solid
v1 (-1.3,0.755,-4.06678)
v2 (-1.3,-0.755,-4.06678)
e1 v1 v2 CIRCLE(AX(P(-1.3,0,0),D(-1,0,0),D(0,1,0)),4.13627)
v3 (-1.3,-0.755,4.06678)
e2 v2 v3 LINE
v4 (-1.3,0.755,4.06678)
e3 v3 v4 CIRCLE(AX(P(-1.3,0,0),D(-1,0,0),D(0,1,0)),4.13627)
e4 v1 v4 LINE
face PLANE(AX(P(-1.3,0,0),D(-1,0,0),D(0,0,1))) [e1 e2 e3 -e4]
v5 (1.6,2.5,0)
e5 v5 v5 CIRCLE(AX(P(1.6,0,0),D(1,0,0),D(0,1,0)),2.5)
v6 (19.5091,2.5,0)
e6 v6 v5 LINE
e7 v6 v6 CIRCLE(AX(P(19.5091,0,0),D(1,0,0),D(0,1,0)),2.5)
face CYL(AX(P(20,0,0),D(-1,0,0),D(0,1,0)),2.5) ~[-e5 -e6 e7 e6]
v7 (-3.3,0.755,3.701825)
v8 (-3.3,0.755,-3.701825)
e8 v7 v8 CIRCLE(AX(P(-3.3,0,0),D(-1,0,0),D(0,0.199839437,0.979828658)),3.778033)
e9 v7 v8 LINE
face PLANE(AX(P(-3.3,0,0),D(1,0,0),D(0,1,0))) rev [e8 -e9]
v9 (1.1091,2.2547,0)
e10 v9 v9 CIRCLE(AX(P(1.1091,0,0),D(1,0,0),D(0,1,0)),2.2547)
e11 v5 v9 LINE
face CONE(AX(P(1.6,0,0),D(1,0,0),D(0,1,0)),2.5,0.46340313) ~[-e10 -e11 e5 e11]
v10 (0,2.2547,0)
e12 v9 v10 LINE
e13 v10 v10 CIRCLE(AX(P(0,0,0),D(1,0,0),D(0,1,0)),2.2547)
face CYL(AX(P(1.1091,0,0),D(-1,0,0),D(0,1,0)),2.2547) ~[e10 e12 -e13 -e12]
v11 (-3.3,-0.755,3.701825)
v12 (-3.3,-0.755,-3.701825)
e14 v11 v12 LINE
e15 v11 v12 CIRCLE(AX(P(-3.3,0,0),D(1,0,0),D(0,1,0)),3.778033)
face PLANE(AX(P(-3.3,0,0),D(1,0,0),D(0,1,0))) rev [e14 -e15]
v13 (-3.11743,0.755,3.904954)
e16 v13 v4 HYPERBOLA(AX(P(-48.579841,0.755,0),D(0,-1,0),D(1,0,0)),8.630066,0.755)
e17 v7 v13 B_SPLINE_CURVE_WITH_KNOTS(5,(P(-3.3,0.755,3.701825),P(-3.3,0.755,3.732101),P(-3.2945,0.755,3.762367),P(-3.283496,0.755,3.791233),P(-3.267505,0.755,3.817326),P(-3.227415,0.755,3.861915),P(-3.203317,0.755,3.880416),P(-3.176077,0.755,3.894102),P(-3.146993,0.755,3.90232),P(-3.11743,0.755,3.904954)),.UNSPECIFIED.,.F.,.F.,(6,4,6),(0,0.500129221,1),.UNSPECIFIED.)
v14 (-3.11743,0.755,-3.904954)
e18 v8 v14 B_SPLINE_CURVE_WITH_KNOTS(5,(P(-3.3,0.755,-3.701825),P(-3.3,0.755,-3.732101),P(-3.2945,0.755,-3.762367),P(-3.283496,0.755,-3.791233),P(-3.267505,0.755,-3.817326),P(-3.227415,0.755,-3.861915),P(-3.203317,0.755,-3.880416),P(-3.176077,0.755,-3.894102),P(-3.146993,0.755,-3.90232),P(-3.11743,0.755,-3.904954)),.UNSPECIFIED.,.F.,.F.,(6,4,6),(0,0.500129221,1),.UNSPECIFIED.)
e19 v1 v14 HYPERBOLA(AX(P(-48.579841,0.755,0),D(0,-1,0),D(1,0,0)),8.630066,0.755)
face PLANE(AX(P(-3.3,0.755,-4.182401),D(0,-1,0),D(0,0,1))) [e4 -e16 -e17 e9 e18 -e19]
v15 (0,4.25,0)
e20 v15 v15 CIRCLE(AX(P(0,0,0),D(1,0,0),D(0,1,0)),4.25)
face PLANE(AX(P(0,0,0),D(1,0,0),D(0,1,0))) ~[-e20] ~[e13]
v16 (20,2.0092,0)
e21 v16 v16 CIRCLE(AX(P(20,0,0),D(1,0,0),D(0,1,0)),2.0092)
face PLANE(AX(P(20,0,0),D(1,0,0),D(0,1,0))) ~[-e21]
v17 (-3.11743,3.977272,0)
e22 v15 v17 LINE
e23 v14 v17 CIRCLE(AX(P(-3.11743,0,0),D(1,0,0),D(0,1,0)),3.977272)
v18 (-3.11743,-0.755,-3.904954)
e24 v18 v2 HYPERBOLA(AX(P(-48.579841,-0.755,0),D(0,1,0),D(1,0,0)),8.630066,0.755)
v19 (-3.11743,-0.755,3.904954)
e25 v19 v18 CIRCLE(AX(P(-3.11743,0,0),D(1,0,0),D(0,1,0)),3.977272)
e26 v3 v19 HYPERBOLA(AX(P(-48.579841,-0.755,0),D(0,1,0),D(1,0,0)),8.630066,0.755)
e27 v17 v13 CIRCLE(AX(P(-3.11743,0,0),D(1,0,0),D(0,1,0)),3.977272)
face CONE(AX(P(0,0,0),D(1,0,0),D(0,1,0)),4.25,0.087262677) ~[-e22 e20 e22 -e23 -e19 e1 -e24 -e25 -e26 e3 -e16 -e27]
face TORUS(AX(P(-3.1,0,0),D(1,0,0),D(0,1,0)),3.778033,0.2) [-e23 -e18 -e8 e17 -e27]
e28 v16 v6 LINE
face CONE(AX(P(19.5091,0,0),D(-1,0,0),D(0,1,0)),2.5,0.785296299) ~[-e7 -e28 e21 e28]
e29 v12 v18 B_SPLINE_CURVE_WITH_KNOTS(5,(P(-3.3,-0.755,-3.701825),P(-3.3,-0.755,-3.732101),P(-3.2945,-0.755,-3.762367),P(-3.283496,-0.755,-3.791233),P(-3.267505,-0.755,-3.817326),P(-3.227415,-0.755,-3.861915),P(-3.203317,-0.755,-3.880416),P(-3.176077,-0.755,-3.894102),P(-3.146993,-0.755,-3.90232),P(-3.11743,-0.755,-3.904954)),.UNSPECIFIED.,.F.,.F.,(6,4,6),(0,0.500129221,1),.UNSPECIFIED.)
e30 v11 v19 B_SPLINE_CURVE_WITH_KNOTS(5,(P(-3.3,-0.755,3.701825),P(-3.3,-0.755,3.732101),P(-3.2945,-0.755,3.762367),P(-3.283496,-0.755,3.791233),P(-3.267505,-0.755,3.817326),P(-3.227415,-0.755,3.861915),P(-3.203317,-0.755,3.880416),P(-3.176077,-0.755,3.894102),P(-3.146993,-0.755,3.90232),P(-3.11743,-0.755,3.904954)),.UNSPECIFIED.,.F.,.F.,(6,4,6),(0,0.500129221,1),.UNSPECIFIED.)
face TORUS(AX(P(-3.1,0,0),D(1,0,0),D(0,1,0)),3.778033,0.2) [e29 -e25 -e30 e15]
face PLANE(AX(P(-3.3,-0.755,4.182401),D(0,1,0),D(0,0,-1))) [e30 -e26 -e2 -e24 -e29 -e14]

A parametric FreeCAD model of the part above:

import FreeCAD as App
import Part
import Sketcher
from FreeCAD import Vector
Q = App.Units.Quantity


def edges_at(feature, points):
    """Names of the edges that pass closest to the given points."""
    edges = feature.Shape.Edges
    near = lambda p: min(range(len(edges)), key=lambda i: edges[i].distToShape(Part.Vertex(*p))[0])
    return sorted({f"Edge{near(p) + 1}" for p in points})

doc = App.newDocument("Part")
body = doc.addObject("PartDesign::Body", "Body")

# Sketch on XY plane
sketch1 = body.newObject("Sketcher::SketchObject", "Sketch")
sketch1.AttachmentSupport = (doc.getObject("XY_Plane"), [""])
sketch1.MapMode = "FlatFace"
sketch1.addGeometry(Part.LineSegment(Vector(-3.3, 4, 0), Vector(-3.3, 0, 0)), False)
sketch1.addGeometry(Part.LineSegment(Vector(-3.3, 0, 0), Vector(20, 0, 0)), False)
sketch1.addGeometry(Part.LineSegment(Vector(20, 0, 0), Vector(20, 2.5, 0)), False)
sketch1.addGeometry(Part.LineSegment(Vector(20, 2.5, 0), Vector(1.6, 2.5, 0)), False)
sketch1.addGeometry(Part.LineSegment(Vector(1.6, 2.5, 0), Vector(1.1, 2.3, 0)), False)
sketch1.addGeometry(Part.LineSegment(Vector(1.1, 2.3, 0), Vector(0, 2.3, 0)), False)
sketch1.addGeometry(Part.LineSegment(Vector(0, 2.3, 0), Vector(0, 4.2, 0)), False)
sketch1.addGeometry(Part.LineSegment(Vector(0, 4.2, 0), Vector(-3.3, 4, 0)), False)
sketch1.addConstraint(Sketcher.Constraint("Coincident", 0, 2, 1, 1))
sketch1.addConstraint(Sketcher.Constraint("Coincident", 1, 2, 2, 1))
sketch1.addConstraint(Sketcher.Constraint("Coincident", 2, 2, 3, 1))
sketch1.addConstraint(Sketcher.Constraint("Coincident", 3, 2, 4, 1))
sketch1.addConstraint(Sketcher.Constraint("Coincident", 4, 2, 5, 1))
sketch1.addConstraint(Sketcher.Constraint("Coincident", 5, 2, 6, 1))
sketch1.addConstraint(Sketcher.Constraint("Coincident", 6, 2, 7, 1))
sketch1.addConstraint(Sketcher.Constraint("Coincident", 7, 2, 0, 1))
sketch1.addConstraint(Sketcher.Constraint("Vertical", 0))
sketch1.addConstraint(Sketcher.Constraint("Horizontal", 1))
sketch1.addConstraint(Sketcher.Constraint("Vertical", 2))
sketch1.addConstraint(Sketcher.Constraint("Horizontal", 3))
sketch1.addConstraint(Sketcher.Constraint("Horizontal", 5))
sketch1.addConstraint(Sketcher.Constraint("Vertical", 6))
sketch1.addConstraint(Sketcher.Constraint("PointOnObject", 0, 2, -1))
sketch1.addConstraint(Sketcher.Constraint("PointOnObject", 5, 2, -2))
sketch1.addConstraint(Sketcher.Constraint("DistanceX", 3, 2, 3, 1, Q("18.4 mm")))
sketch1.addConstraint(Sketcher.Constraint("DistanceX", -1, 1, 1, 2, Q("20 mm")))
sketch1.addConstraint(Sketcher.Constraint("DistanceX", 0, 2, -1, 1, Q("3.3 mm")))
sketch1.addConstraint(Sketcher.Constraint("Angle", 7, Q("-175.0002 deg")))
sketch1.addConstraint(Sketcher.Constraint("DistanceY", 2, 1, 2, 2, Q("2.5 mm")))
sketch1.addConstraint(Sketcher.Constraint("DistanceX", 4, 2, 3, 2, Q("0.491 mm")))
sketch1.addConstraint(Sketcher.Constraint("Angle", 4, Q("-153.449 deg")))
sketch1.addConstraint(Sketcher.Constraint("DistanceY", -1, 1, 6, 2, Q("4.25 mm")))
revolution = body.newObject("PartDesign::Revolution", "Revolution")
revolution.Profile = sketch1
revolution.ReferenceAxis = (sketch1, ["H_Axis"])
revolution.Angle = 360
doc.recompute()

fillet = body.newObject("PartDesign::Fillet", "Fillet")
fillet.Base = (revolution, edges_at(revolution, [(-3.3, -3.961, 0)]))
fillet.Radius = 0.2

# Sketch on YZ plane
sketch2 = body.newObject("Sketcher::SketchObject", "Sketch001")
sketch2.AttachmentSupport = (doc.getObject("YZ_Plane"), [""])
sketch2.MapMode = "FlatFace"
sketch2.AttachmentOffset = App.Placement(Vector(0, 0, -3.3), App.Rotation())
sketch2.addGeometry(Part.LineSegment(Vector(-0.8, 4.2, 0), Vector(0.8, 4.2, 0)), False)
sketch2.addGeometry(Part.LineSegment(Vector(0.8, 4.2, 0), Vector(0.8, -4.2, 0)), False)
sketch2.addGeometry(Part.LineSegment(Vector(0.8, -4.2, 0), Vector(-0.8, -4.2, 0)), False)
sketch2.addGeometry(Part.LineSegment(Vector(-0.8, -4.2, 0), Vector(-0.8, 4.2, 0)), False)
sketch2.addConstraint(Sketcher.Constraint("Coincident", 0, 2, 1, 1))
sketch2.addConstraint(Sketcher.Constraint("Coincident", 1, 2, 2, 1))
sketch2.addConstraint(Sketcher.Constraint("Coincident", 2, 2, 3, 1))
sketch2.addConstraint(Sketcher.Constraint("Coincident", 3, 2, 0, 1))
sketch2.addConstraint(Sketcher.Constraint("Horizontal", 0))
sketch2.addConstraint(Sketcher.Constraint("Vertical", 1))
sketch2.addConstraint(Sketcher.Constraint("Horizontal", 2))
sketch2.addConstraint(Sketcher.Constraint("Vertical", 3))
sketch2.addConstraint(Sketcher.Constraint("Symmetric", 0, 2, 2, 2, -1, 1))
sketch2.addConstraint(Sketcher.Constraint("DistanceY", 1, 2, 1, 1, Q("8.5 mm")))
sketch2.addConstraint(Sketcher.Constraint("DistanceX", 0, 1, 0, 2, Q("1.51 mm")))
pocket1 = body.newObject("PartDesign::Pocket", "Pocket")
pocket1.Profile = sketch2
pocket1.Length = 2
pocket1.Reversed = True
doc.recompute()

chamfer = body.newObject("PartDesign::Chamfer", "Chamfer")
chamfer.Base = (pocket1, edges_at(pocket1, [(20, -2.5, 0)]))
chamfer.ChamferType = "Two distances"
chamfer.Size = 0.4908
chamfer.Size2 = 0.4909

doc.recompute()
